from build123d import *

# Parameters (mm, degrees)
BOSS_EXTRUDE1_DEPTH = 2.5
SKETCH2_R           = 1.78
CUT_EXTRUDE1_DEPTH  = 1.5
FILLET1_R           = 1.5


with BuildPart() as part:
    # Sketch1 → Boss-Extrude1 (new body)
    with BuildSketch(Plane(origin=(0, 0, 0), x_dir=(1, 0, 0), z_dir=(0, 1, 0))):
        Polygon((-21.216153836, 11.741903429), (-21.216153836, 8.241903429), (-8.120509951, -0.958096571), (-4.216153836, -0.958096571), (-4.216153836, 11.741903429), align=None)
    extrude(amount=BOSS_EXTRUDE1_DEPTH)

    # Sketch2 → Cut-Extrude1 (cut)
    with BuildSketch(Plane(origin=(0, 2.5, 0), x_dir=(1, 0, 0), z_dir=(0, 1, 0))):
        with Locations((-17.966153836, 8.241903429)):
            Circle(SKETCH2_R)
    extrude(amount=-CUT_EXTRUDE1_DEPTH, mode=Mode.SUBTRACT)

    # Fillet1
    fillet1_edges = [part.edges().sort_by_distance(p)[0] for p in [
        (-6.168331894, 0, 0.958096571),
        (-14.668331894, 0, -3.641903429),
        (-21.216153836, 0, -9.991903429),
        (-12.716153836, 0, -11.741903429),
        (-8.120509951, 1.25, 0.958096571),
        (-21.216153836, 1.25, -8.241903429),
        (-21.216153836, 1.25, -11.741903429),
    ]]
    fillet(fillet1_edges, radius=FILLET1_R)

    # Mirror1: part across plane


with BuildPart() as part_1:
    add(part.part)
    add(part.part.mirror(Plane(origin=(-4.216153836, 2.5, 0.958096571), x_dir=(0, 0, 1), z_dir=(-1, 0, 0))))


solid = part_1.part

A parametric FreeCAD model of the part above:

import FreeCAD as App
import Part
import Sketcher
Q = App.Units.Quantity


def edges_at(feature, points):
    """Names of the edges that pass closest to the given points."""
    edges = feature.Shape.Edges
    near = lambda p: min(range(len(edges)), key=lambda i: edges[i].distToShape(Part.Vertex(*p))[0])
    return sorted({f"Edge{near(p) + 1}" for p in points})

doc = App.newDocument("Part")
body = doc.addObject("PartDesign::Body", "Body")

# Sketch on XZ plane
sketch1 = body.newObject("Sketcher::SketchObject", "Sketch")
sketch1.AttachmentSupport = (doc.getObject("XZ_Plane"), [""])
sketch1.MapMode = "FlatFace"
sketch1.addGeometry([
    Part.LineSegment(App.Vector(-21.2, -11.7, 0), App.Vector(-21.2, -8.2, 0)),  # 0
    Part.LineSegment(App.Vector(-21.2, -8.2, 0), App.Vector(-8.1, 1, 0)),  # 1
    Part.LineSegment(App.Vector(-8.1, 1, 0), App.Vector(-4.2, 1, 0)),  # 2
    Part.LineSegment(App.Vector(-4.2, 1, 0), App.Vector(-4.2, -11.7, 0)),  # 3
    Part.LineSegment(App.Vector(-4.2, -11.7, 0), App.Vector(-21.2, -11.7, 0)),  # 4
], False)
sketch1.addConstraint([
    Sketcher.Constraint("Coincident", 0, 2, 1, 1),
    Sketcher.Constraint("Coincident", 1, 2, 2, 1),
    Sketcher.Constraint("Coincident", 2, 2, 3, 1),
    Sketcher.Constraint("Coincident", 3, 2, 4, 1),
    Sketcher.Constraint("Coincident", 4, 2, 0, 1),
    Sketcher.Constraint("Vertical", 0),
    Sketcher.Constraint("Horizontal", 2),
    Sketcher.Constraint("Vertical", 3),
    Sketcher.Constraint("Horizontal", 4),
    Sketcher.Constraint("DistanceX", 4, 2, 4, 1, Q("17 mm")),
    Sketcher.Constraint("DistanceY", 0, 1, 0, 2, Q("3.5 mm")),
    Sketcher.Constraint("DistanceY", 3, 2, 3, 1, Q("12.7 mm")),
    Sketcher.Constraint("DistanceX", 2, 1, 2, 2, Q("3.904356 mm")),
    Sketcher.Constraint("DistanceX", 1, 2, -1, 1, Q("8.12051 mm")),
    Sketcher.Constraint("DistanceY", 0, 2, -1, 1, Q("8.241903 mm")),
])
pad1 = body.newObject("PartDesign::Pad", "Pad")
pad1.Profile = sketch1
pad1.Length = 2.5
pad1.Reversed = True

# Sketch on XZ plane
sketch2 = body.newObject("Sketcher::SketchObject", "Sketch001")
sketch2.AttachmentSupport = (doc.getObject("XZ_Plane"), [""])
sketch2.MapMode = "FlatFace"
sketch2.AttachmentOffset = App.Placement(App.Vector(0, 0, -2.5), App.Rotation())
sketch2.addGeometry(Part.Circle(App.Vector(-18, -8.2, 0), App.Vector(0, 0, 1), 1.8), False)
sketch2.addConstraint([
    Sketcher.Constraint("Diameter", 0, Q("3.56 mm")),
    Sketcher.Constraint("DistanceX", 0, 3, -1, 1, Q("17.966154 mm")),
    Sketcher.Constraint("DistanceY", 0, 3, -1, 1, Q("8.241903 mm")),
])
pocket1 = body.newObject("PartDesign::Pocket", "Pocket")
pocket1.Profile = sketch2
pocket1.Length = 1.5
pocket1.Reversed = True
doc.recompute()

fillet = body.newObject("PartDesign::Fillet", "Fillet")
fillet.Base = (pocket1, edges_at(pocket1, [
    (-6.168, 0, 0.958),
    (-14.668, 0, -3.642),
    (-21.216, 0, -9.992),
    (-12.716, 0, -11.742),
    (-8.121, 1.25, 0.958),
    (-21.216, 1.25, -8.242),
    (-21.216, 1.25, -11.742),
]))
fillet.Radius = 1.5
body2 = doc.addObject("PartDesign::Body", "Body001")
doc.recompute()

body2.BaseFeature = body
doc.recompute()

mirroring = doc.addObject("Part::Mirroring", "Mirroring")
mirroring.Source = body
mirroring.Base = App.Vector(-4.216154, 2.5, 0.958097)
mirroring.Normal = App.Vector(-1, 0, 0)
body3 = doc.addObject("PartDesign::Body", "Body002")
body3.BaseFeature = mirroring
boolean = body2.newObject("PartDesign::Boolean", "Boolean")
boolean.Type = "Fuse"
boolean.addObjects([body3])
doc.recompute()
mirroring.Visibility = False

doc.recompute()
